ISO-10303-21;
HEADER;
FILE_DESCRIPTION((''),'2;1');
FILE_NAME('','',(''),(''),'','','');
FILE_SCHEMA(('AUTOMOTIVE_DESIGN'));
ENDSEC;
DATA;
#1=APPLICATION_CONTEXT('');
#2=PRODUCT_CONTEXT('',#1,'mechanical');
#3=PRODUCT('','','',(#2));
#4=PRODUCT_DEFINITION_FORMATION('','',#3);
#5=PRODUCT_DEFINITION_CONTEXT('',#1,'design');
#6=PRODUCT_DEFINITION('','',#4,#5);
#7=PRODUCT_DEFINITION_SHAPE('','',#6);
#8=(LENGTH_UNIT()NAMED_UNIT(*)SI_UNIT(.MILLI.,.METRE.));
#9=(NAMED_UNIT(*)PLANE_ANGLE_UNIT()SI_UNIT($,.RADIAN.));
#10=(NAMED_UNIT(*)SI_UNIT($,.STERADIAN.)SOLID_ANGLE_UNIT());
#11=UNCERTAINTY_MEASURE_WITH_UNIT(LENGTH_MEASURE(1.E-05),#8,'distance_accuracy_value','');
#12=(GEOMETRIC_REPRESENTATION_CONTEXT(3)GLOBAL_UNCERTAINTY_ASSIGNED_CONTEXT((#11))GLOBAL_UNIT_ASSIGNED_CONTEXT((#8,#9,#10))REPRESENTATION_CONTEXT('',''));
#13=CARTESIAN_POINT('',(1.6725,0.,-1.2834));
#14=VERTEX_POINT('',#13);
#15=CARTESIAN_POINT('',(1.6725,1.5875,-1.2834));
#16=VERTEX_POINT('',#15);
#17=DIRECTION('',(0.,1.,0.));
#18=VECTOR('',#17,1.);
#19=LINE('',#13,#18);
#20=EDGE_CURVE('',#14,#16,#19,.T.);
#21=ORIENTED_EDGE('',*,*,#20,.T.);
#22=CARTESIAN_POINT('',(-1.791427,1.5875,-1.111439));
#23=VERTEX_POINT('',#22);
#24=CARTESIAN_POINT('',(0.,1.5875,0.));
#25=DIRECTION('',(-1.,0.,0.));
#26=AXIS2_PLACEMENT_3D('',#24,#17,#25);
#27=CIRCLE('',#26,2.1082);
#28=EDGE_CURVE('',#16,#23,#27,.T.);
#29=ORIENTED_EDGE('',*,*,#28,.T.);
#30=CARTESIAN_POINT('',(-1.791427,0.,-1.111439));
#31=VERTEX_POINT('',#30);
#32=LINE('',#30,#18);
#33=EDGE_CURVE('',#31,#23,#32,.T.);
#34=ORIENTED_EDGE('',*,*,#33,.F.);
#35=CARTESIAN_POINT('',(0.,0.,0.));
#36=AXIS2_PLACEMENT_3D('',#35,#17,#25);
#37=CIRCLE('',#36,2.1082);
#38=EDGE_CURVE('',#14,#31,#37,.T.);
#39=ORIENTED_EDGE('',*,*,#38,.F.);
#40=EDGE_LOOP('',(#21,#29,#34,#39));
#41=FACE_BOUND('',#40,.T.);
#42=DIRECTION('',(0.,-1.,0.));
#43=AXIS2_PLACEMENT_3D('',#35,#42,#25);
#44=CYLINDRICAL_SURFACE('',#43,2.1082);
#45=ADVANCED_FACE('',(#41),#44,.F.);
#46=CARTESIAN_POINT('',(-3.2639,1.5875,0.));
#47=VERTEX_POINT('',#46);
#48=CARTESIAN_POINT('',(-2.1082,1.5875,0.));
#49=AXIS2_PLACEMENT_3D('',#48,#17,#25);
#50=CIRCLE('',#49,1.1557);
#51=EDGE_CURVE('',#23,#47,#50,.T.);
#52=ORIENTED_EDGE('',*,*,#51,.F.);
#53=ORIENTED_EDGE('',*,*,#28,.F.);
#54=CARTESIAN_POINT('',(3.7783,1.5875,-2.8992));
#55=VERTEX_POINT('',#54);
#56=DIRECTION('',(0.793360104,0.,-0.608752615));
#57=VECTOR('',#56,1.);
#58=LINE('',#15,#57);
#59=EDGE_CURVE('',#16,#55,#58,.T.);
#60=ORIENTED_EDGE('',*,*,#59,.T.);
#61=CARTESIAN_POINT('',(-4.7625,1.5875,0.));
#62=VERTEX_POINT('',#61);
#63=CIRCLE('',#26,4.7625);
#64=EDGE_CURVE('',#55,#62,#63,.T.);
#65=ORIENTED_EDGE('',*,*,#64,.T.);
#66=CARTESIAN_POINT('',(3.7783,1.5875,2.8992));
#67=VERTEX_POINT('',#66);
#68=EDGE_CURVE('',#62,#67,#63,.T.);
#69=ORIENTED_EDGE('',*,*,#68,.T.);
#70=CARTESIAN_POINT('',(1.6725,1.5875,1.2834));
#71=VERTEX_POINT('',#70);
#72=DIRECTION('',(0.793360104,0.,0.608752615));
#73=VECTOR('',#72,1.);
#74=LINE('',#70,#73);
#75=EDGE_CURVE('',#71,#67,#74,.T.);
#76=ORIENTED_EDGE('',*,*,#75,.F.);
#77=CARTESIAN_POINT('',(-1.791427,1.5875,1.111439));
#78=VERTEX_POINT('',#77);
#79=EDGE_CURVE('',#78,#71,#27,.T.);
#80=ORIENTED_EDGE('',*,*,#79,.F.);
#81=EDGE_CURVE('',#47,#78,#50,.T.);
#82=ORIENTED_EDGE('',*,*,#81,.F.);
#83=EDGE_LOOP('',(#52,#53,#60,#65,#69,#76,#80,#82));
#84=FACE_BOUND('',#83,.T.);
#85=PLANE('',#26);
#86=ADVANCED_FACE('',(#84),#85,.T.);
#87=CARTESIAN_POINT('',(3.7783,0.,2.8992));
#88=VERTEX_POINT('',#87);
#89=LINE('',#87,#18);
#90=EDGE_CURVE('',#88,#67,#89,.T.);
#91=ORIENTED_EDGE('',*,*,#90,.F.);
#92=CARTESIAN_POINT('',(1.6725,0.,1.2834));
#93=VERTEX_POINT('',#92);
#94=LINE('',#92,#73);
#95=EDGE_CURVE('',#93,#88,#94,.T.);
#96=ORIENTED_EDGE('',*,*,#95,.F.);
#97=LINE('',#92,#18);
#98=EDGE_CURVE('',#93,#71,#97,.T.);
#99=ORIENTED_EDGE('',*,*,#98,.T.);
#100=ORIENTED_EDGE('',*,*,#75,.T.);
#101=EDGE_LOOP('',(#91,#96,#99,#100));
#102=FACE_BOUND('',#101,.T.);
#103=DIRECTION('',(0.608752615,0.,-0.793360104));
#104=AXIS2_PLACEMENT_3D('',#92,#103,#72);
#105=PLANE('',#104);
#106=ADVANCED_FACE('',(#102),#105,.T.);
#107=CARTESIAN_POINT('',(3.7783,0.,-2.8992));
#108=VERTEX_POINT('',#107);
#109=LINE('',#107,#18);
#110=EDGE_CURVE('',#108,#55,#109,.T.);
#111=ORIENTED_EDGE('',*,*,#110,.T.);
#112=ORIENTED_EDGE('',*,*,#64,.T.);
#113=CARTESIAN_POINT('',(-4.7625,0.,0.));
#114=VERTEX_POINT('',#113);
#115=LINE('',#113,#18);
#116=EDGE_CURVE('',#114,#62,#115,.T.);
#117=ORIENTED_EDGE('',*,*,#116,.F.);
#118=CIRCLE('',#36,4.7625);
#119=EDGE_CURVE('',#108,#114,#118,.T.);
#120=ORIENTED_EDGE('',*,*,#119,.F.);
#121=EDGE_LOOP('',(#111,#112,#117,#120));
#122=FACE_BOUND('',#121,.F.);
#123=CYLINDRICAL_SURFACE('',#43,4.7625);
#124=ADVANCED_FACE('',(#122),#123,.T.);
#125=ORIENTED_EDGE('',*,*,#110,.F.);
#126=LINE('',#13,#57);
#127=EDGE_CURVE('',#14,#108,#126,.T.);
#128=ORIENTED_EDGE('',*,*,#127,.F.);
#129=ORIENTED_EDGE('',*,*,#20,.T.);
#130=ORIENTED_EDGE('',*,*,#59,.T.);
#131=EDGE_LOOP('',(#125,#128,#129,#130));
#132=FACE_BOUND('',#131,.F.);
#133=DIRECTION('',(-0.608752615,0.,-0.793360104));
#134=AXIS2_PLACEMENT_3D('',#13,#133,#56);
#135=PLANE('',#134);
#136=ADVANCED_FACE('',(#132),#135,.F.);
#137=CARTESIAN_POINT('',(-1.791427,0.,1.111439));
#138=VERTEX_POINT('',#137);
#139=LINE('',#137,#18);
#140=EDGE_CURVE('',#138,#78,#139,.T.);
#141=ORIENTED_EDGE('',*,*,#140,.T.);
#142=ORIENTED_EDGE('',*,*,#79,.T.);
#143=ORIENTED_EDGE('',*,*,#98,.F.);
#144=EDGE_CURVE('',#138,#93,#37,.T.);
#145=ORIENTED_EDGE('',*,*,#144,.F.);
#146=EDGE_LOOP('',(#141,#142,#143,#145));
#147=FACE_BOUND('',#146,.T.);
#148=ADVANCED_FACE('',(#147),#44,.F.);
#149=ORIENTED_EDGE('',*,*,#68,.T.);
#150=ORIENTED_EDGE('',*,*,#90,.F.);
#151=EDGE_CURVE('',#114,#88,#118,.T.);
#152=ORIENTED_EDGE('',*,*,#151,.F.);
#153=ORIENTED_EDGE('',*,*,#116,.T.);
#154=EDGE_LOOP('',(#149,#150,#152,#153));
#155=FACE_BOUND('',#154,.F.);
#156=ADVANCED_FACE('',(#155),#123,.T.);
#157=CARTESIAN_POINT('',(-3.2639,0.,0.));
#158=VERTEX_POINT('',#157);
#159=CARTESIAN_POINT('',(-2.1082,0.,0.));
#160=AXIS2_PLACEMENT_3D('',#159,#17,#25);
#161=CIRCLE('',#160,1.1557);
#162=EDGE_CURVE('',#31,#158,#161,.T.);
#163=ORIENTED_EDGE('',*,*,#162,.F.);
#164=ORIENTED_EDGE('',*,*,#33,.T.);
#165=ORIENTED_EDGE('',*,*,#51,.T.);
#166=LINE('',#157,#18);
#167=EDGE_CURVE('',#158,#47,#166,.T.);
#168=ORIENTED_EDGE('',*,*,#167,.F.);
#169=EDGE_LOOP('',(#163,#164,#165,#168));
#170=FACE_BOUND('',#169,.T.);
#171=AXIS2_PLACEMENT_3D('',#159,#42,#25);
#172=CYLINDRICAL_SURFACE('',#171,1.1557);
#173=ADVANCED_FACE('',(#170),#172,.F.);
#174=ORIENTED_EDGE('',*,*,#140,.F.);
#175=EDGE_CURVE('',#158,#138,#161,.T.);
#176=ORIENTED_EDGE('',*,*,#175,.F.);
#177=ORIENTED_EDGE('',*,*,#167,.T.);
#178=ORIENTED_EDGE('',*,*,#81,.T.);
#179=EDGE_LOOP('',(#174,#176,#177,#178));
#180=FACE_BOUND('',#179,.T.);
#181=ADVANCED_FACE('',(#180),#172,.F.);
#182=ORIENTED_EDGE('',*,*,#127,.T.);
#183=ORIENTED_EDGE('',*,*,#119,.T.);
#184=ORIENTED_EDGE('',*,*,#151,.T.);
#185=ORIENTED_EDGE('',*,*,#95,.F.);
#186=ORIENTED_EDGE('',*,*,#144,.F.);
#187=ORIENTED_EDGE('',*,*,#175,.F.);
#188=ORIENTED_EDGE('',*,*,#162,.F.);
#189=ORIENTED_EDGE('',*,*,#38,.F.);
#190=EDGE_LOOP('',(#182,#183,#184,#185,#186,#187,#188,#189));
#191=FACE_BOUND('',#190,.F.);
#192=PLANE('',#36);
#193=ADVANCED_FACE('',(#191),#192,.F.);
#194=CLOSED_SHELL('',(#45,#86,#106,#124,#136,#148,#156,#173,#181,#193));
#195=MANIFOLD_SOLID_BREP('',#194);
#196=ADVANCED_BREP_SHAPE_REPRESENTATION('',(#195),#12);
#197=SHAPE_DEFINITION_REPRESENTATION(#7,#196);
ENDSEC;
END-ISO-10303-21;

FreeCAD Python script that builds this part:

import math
import FreeCAD as App
import Part
import Sketcher
from FreeCAD import Vector
Q = App.Units.Quantity

doc = App.newDocument("Part")
body = doc.addObject("PartDesign::Body", "Body")

# Sketch on XZ plane
sketch1 = body.newObject("Sketcher::SketchObject", "Sketch")
sketch1.AttachmentSupport = (doc.getObject("XZ_Plane"), [""])
sketch1.MapMode = "FlatFace"
sketch1.addGeometry([
    Part.ArcOfCircle(Part.Circle(Vector(0, 0, 0), Vector(0, 0, 1), 4.8), math.radians(38), math.radians(322)),  # 0
    Part.LineSegment(Vector(3.8, 2.9, 0), Vector(1.7, 1.3, 0)),  # 1
    Part.ArcOfCircle(Part.Circle(Vector(0, 0, 0), Vector(0, 0, 1), 2.1), math.radians(38), math.radians(148)),  # 2
    Part.ArcOfCircle(Part.Circle(Vector(-2.1, 0, 0), Vector(0, 0, 1), 1.2), math.radians(74), math.radians(286)),  # 3
    Part.ArcOfCircle(Part.Circle(Vector(0, 0, 0), Vector(0, 0, 1), 2.1), math.radians(-148), math.radians(-38)),  # 4
    Part.LineSegment(Vector(1.7, -1.3, 0), Vector(3.8, -2.9, 0)),  # 5
], False)
sketch1.addConstraint([
    Sketcher.Constraint("Coincident", 0, 1, 1, 1),
    Sketcher.Constraint("Coincident", 1, 2, 2, 1),
    Sketcher.Constraint("Coincident", 2, 2, 3, 1),
    Sketcher.Constraint("Coincident", 3, 2, 4, 1),
    Sketcher.Constraint("Coincident", 4, 2, 5, 1),
    Sketcher.Constraint("Coincident", 5, 2, 0, 2),
    Sketcher.Constraint("Coincident", 0, 3, -1, 1),
    Sketcher.Constraint("Coincident", 2, 3, -1, 1),
    Sketcher.Constraint("Coincident", 4, 3, -1, 1),
    Sketcher.Constraint("Equal", 2, 4),
    Sketcher.Constraint("PointOnObject", 3, 3, -1),
    Sketcher.Constraint("Vertical", 1, 2, 4, 2),
    Sketcher.Constraint("Vertical", 0, 1, 5, 2),
    Sketcher.Constraint("Radius", 0, Q("0.1875 in")),
    Sketcher.Constraint("Radius", 2, Q("0.083 in")),
    Sketcher.Constraint("Radius", 3, Q("0.0455 in")),
    Sketcher.Constraint("Angle", 1, Q("-142.5006 deg")),
    Sketcher.Constraint("DistanceX", 3, 3, -1, 1, Q("0.083 in")),
    Sketcher.Constraint("DistanceX", -1, 1, 0, 1, 3.7783),
])
pad1 = body.newObject("PartDesign::Pad", "Pad")
pad1.Profile = sketch1
pad1.Length = Q("0.0625 in")
pad1.Reversed = True

doc.recompute()
